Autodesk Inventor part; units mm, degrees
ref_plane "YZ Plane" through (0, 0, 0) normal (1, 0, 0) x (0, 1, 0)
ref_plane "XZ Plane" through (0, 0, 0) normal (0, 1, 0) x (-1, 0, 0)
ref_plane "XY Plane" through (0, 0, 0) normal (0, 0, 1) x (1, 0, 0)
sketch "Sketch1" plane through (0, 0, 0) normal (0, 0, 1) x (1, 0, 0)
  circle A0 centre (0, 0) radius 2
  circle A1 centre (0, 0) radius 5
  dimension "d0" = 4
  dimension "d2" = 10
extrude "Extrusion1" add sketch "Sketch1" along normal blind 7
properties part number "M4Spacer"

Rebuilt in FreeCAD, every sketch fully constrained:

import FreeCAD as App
import Part
import Sketcher

V = App.Vector
Q = App.Units.Quantity

doc = App.newDocument("Part")
params = doc.addObject("Spreadsheet::Sheet", "Params")
for row, (alias, value) in enumerate([
    ("sketch1_diameter", "10 mm"),
    ("sketch1_diameter2", "4 mm"),
    ("pad1_length", "7 mm"),
], start=1):
    params.set(f"A{row}", alias)
    params.set(f"B{row}", "=" + value)
    params.setAlias(f"B{row}", alias)

body = doc.addObject("PartDesign::Body", "Body")

# Sketch on XY plane
sketch1 = body.newObject("Sketcher::SketchObject", "Sketch")
sketch1.AttachmentSupport = (doc.getObject("XY_Plane"), [""])
sketch1.MapMode = "FlatFace"
sketch1.addGeometry(Part.Circle(V(0, 0, 0), V(0, 0, 1), 5), False)
sketch1.addGeometry(Part.Circle(V(0, 0, 0), V(0, 0, 1), 2), False)
sketch1.addConstraint(Sketcher.Constraint("Coincident", 0, 3, -1, 1))
sketch1.addConstraint(Sketcher.Constraint("Coincident", 1, 3, -1, 1))
sketch1.addConstraint(Sketcher.Constraint("Diameter", 0, Q("10 mm")))
sketch1.addConstraint(Sketcher.Constraint("Diameter", 1, Q("4 mm")))
sketch1.setExpression("Constraints[2]", "Params.sketch1_diameter")
sketch1.setExpression("Constraints[3]", "Params.sketch1_diameter2")
pad1 = body.newObject("PartDesign::Pad", "Pad")
pad1.Profile = sketch1
pad1.setExpression("Length", "Params.pad1_length")

doc.recompute()
